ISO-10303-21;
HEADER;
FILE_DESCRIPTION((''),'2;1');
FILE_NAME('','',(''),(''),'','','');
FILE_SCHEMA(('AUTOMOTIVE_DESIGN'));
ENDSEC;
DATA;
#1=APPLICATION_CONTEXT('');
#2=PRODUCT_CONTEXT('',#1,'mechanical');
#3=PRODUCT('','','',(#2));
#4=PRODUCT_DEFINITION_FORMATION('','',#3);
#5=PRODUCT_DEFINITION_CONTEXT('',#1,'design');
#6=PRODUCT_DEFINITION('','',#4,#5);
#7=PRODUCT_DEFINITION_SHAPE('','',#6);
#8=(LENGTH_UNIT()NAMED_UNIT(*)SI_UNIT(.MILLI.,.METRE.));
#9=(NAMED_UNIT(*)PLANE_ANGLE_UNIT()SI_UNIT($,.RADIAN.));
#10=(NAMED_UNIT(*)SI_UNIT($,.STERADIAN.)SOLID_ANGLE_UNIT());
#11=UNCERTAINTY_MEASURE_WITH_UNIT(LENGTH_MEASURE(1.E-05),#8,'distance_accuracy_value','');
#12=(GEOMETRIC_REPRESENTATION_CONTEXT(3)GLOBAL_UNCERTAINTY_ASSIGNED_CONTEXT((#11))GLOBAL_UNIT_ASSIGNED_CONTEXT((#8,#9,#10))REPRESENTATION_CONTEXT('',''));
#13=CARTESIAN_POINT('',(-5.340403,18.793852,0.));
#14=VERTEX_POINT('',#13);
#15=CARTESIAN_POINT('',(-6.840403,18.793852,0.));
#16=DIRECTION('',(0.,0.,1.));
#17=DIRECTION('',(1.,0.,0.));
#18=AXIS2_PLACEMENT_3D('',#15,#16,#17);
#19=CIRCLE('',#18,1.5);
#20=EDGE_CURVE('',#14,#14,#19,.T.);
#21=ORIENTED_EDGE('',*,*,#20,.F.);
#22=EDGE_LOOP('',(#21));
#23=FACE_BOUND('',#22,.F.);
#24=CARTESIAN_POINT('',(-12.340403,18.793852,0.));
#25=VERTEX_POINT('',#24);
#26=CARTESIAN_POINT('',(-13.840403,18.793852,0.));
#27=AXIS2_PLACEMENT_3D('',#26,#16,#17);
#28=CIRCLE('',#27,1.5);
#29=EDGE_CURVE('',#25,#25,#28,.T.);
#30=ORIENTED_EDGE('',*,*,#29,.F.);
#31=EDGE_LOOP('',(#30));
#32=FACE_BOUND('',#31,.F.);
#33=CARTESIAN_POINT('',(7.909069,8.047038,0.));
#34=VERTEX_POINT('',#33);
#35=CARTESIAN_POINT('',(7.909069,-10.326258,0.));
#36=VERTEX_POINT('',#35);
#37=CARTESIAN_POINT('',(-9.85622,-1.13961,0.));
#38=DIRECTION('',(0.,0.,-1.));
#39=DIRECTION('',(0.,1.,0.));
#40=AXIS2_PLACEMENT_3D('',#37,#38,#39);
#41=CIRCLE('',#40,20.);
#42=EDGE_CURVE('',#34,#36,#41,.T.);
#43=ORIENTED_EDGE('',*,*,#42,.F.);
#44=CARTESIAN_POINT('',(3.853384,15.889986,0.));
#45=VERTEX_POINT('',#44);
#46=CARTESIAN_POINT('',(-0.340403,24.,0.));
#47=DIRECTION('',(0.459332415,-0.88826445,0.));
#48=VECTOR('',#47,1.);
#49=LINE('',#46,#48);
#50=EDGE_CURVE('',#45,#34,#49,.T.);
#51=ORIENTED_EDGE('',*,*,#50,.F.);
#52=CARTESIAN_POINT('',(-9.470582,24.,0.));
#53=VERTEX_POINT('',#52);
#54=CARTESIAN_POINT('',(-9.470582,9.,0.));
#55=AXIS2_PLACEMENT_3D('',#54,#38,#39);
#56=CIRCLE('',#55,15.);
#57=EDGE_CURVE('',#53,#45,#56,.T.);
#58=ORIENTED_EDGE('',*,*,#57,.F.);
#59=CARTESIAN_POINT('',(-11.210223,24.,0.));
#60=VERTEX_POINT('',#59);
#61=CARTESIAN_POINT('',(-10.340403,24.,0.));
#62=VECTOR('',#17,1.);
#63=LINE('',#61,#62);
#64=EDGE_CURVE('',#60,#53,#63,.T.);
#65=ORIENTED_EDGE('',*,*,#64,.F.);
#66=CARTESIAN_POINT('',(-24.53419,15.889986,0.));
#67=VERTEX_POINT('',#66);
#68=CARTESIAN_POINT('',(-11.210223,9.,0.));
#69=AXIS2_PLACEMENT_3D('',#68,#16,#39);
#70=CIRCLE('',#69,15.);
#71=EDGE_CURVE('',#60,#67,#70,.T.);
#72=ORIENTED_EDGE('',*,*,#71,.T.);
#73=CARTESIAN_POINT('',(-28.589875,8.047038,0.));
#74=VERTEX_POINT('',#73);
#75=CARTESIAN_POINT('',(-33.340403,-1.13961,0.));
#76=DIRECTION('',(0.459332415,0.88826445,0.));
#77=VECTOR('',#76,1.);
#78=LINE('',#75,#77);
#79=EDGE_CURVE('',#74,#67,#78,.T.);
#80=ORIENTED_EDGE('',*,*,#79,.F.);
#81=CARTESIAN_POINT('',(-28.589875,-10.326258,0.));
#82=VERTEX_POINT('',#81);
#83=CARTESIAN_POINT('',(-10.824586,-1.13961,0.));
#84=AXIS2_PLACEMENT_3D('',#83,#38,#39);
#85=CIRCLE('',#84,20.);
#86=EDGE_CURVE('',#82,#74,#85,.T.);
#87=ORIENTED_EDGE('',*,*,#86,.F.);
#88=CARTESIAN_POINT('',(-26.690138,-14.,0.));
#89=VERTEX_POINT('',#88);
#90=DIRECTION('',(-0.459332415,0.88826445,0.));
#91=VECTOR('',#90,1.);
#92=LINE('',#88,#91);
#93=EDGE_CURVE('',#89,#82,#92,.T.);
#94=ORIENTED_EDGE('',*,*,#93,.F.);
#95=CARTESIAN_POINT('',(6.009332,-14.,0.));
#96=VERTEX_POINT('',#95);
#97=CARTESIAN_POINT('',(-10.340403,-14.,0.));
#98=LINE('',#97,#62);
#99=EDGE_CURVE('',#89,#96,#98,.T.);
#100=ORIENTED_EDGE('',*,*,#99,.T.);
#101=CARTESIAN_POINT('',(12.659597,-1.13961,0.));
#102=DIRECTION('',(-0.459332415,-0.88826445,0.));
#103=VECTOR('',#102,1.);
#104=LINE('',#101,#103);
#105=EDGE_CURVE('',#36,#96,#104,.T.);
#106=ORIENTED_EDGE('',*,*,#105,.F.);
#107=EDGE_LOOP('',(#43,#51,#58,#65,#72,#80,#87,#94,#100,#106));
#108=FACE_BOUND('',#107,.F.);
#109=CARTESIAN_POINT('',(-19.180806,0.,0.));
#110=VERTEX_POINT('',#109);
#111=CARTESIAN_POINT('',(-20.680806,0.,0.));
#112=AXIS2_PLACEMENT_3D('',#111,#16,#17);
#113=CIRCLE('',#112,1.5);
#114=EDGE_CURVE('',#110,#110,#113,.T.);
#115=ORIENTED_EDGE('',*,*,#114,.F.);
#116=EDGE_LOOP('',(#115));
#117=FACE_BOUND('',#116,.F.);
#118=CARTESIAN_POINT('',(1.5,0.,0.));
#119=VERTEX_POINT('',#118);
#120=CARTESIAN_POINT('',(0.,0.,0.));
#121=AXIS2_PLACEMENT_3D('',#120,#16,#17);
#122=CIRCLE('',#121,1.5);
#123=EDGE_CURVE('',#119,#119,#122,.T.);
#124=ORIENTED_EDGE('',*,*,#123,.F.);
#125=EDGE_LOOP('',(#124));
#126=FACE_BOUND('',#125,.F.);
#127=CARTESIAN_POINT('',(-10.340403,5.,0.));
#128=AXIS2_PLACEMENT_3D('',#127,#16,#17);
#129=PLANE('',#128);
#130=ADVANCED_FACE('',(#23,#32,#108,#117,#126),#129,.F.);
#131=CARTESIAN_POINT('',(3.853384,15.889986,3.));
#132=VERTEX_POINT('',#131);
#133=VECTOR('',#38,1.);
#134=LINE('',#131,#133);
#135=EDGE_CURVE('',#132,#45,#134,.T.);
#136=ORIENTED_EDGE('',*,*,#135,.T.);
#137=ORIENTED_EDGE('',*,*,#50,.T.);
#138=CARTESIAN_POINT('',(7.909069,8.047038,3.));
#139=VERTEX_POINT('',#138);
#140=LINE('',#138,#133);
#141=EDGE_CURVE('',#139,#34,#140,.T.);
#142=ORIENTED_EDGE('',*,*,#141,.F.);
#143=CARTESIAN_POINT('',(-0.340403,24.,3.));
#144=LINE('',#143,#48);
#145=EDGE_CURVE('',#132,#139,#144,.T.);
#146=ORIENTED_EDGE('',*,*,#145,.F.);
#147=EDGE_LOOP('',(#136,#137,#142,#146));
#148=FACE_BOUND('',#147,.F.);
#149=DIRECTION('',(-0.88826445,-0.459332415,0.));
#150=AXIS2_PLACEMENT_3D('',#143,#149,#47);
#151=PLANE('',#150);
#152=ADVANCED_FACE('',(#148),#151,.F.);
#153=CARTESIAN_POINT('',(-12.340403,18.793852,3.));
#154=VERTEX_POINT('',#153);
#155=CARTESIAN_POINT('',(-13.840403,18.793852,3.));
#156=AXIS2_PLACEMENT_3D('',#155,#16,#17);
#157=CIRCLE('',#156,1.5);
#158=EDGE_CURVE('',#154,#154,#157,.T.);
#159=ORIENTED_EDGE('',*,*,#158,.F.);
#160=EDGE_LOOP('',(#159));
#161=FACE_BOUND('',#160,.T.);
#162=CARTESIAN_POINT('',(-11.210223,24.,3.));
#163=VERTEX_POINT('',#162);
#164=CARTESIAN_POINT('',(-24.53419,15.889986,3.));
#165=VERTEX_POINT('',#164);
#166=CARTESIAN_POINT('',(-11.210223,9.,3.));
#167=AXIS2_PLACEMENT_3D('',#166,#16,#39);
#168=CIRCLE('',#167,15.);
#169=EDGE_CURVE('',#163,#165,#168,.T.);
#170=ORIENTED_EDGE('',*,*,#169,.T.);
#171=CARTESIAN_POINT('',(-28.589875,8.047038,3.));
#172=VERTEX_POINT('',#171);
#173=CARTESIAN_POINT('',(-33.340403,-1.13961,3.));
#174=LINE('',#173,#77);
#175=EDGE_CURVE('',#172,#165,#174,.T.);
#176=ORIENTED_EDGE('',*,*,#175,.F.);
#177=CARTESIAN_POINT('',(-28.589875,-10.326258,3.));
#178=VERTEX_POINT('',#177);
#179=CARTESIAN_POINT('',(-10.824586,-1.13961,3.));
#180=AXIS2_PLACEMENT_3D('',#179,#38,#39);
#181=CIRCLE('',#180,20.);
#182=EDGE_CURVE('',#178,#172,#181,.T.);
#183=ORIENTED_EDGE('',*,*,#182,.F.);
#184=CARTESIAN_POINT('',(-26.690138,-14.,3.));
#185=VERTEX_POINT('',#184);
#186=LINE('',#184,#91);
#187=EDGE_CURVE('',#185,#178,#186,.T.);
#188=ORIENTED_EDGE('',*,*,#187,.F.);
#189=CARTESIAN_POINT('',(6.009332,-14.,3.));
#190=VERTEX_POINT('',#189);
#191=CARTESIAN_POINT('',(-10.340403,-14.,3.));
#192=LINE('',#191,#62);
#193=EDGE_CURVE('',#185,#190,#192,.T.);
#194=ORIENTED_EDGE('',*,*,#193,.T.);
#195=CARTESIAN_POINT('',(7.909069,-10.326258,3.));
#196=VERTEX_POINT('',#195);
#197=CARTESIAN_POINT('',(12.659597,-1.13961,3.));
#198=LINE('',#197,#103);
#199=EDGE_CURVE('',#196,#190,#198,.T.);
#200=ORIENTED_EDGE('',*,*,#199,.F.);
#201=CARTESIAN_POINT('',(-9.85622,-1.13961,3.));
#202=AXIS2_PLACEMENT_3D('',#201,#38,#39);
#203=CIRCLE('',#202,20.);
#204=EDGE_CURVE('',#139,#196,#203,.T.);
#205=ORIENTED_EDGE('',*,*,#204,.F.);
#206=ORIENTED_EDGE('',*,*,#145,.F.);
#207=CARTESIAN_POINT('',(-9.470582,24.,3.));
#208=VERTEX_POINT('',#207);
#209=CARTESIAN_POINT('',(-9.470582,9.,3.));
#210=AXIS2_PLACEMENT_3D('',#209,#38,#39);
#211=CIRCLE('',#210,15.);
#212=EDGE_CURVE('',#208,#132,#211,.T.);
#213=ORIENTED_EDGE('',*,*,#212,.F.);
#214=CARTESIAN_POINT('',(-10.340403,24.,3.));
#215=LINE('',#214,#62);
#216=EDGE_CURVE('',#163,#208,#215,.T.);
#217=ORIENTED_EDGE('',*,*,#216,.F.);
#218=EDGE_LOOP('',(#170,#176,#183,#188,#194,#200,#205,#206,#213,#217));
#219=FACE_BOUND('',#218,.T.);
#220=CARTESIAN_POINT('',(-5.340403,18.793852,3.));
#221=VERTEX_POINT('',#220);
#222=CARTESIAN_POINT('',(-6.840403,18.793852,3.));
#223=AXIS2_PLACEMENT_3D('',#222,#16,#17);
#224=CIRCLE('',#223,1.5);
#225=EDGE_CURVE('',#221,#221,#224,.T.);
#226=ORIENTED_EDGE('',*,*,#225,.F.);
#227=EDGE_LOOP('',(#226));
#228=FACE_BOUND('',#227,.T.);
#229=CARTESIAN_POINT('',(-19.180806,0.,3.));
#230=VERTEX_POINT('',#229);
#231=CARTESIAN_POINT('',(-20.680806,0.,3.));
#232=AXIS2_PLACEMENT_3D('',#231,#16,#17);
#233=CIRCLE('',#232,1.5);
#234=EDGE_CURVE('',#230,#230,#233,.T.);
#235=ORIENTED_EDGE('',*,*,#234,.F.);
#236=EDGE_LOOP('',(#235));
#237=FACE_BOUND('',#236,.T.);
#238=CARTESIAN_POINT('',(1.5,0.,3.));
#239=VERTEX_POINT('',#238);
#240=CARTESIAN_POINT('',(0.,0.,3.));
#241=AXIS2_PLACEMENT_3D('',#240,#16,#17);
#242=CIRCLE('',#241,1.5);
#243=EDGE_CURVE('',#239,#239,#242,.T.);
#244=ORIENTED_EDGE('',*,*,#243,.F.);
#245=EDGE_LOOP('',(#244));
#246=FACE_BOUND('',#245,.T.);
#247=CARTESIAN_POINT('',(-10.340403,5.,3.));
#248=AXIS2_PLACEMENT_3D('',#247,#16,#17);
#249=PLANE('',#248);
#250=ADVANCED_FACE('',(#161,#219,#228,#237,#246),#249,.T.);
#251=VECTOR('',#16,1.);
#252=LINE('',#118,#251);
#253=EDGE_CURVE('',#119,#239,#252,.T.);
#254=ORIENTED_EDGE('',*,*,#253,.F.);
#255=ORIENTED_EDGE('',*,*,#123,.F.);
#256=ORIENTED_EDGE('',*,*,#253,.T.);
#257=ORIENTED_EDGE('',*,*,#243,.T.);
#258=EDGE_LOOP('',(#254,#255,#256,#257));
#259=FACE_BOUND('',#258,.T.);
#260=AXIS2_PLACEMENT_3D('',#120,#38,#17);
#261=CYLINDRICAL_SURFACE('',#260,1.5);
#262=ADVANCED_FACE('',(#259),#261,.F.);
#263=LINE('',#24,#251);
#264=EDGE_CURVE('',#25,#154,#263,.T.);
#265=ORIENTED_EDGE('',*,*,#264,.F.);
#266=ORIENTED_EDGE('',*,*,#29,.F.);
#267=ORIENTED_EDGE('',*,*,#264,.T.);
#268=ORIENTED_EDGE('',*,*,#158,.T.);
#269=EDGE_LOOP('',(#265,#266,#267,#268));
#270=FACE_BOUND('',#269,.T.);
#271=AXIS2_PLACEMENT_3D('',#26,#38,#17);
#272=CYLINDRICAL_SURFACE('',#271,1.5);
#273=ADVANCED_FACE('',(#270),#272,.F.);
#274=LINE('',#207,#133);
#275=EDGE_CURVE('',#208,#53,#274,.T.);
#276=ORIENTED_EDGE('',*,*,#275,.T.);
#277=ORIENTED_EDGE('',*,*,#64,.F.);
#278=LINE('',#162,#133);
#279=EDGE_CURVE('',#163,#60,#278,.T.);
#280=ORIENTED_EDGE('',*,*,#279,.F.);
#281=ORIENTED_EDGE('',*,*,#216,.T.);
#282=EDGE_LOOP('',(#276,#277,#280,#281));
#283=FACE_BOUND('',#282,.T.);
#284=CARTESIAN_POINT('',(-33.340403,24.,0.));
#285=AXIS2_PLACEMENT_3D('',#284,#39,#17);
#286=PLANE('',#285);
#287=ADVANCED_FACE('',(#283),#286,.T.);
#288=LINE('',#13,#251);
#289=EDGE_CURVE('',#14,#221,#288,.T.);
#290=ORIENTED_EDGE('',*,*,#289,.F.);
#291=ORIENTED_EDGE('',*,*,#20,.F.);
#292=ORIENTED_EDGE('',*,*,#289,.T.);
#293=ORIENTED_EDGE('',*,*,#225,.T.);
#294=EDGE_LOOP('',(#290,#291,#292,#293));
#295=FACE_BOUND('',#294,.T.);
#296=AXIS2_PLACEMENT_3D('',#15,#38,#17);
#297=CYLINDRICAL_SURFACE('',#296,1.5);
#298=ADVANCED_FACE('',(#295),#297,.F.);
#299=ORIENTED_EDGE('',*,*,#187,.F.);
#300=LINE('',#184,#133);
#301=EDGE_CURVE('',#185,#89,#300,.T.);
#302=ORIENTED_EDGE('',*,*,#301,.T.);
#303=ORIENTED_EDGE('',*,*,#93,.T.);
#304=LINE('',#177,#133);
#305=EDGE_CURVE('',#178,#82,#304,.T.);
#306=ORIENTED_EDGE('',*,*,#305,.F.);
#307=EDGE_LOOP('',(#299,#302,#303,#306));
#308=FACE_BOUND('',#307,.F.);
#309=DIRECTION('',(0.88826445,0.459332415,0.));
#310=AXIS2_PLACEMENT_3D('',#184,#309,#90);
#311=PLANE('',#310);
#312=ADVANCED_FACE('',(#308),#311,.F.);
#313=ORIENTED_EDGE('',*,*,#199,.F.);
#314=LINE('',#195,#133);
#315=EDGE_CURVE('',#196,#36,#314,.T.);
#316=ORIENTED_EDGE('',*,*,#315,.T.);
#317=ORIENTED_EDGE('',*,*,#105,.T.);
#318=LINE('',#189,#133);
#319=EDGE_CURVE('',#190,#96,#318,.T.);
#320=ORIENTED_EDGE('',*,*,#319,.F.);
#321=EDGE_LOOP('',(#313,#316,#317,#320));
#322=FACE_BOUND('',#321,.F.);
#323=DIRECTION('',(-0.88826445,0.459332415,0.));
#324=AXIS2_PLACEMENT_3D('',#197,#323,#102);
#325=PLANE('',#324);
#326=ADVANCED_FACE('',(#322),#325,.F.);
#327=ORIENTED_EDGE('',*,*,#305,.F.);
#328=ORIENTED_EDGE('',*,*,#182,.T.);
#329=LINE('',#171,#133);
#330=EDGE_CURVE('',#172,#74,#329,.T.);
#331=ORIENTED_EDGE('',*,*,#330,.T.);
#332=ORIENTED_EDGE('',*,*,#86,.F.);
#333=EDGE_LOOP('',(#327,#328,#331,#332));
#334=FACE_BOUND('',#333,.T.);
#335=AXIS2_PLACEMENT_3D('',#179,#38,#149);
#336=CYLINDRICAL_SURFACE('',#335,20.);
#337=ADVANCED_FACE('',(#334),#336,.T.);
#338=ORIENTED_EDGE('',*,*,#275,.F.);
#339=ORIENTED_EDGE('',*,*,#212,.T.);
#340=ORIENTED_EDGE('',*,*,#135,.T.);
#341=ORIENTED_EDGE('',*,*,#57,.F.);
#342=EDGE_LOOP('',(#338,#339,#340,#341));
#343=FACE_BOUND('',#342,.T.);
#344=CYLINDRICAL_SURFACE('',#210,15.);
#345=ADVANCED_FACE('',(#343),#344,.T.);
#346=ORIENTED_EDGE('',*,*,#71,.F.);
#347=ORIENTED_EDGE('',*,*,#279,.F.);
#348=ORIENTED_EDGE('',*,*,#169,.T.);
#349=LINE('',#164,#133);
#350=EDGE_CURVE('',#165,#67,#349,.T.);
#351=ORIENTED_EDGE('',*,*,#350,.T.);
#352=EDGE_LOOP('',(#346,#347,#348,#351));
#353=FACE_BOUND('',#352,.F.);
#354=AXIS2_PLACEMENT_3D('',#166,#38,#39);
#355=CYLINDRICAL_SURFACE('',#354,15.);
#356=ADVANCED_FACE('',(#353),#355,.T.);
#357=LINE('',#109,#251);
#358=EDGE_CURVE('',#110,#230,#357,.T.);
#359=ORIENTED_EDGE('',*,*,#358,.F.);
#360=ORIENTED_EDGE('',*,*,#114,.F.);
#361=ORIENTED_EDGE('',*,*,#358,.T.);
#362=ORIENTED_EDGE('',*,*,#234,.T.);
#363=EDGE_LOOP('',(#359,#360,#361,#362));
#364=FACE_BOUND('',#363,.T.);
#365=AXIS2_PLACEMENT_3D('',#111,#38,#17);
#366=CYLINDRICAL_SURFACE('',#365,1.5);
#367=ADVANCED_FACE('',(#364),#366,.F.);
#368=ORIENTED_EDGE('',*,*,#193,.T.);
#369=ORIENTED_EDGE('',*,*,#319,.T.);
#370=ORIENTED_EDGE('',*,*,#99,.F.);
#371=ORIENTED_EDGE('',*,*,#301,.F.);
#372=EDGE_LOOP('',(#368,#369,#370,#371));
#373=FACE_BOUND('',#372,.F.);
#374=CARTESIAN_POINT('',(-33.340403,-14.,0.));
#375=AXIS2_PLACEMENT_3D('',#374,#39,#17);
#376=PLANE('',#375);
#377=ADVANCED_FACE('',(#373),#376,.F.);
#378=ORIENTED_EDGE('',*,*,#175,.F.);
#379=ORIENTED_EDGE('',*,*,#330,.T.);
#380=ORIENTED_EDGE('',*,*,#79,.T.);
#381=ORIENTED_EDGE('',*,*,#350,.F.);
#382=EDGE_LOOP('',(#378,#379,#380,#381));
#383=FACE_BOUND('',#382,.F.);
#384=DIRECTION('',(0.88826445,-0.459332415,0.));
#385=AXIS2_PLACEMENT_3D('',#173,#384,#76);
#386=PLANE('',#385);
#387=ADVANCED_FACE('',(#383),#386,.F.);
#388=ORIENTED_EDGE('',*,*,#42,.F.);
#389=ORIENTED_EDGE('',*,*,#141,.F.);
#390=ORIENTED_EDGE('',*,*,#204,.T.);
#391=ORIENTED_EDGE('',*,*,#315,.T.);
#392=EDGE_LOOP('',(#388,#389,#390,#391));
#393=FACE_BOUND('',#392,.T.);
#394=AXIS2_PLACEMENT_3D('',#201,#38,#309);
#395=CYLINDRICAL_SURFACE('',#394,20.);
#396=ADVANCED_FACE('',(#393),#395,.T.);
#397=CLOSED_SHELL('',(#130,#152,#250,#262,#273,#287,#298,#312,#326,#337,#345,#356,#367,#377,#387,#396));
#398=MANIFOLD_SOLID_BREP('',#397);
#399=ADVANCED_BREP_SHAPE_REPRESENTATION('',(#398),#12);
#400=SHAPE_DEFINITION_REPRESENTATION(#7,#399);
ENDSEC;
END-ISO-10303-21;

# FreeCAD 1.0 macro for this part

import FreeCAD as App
import Part
import Sketcher

V = App.Vector
Q = App.Units.Quantity


def edges_at(feature, points):
    """Names of the edges that pass closest to the given points."""
    edges = feature.Shape.Edges
    near = lambda p: min(range(len(edges)), key=lambda i: edges[i].distToShape(Part.Vertex(*p))[0])
    return sorted({f"Edge{near(p) + 1}" for p in points})


def add_polygon(sketch, points):
    """Adds a closed chain of lines whose ends are joined by coincident constraints."""
    first, n = sketch.GeometryCount, len(points)
    for a, b in zip(points, points[1:] + points[:1]):
        sketch.addGeometry(Part.LineSegment(App.Vector(*a, 0), App.Vector(*b, 0)), False)
    for i in range(n):
        sketch.addConstraint(Sketcher.Constraint("Coincident", first + i, 2, first + (i + 1) % n, 1))

doc = App.newDocument("Part")
body = doc.addObject("PartDesign::Body", "Body")

# Sketch on XY plane
sketch1 = body.newObject("Sketcher::SketchObject", "Sketch")
sketch1.AttachmentSupport = (doc.getObject("XY_Plane"), [""])
sketch1.MapMode = "FlatFace"
add_polygon(sketch1, [(-33.3, 24), (-33.3, -14), (12.7, -14), (12.7, 24)])  # lines 0-3
sketch1.addGeometry(Part.Circle(V(-20.7, 0, 0), V(0, 0, 1), 1.5), False)  # 4
sketch1.addGeometry(Part.Circle(V(0, 0, 0), V(0, 0, 1), 1.5), False)  # 5
sketch1.addGeometry(Part.Circle(V(-13.8, 18.8, 0), V(0, 0, 1), 1.5), False)  # 6
sketch1.addGeometry(Part.Circle(V(-6.8, 18.8, 0), V(0, 0, 1), 1.5), False)  # 7
sketch1.addConstraint([
    Sketcher.Constraint("Vertical", 0),
    Sketcher.Constraint("Horizontal", 1),
    Sketcher.Constraint("Vertical", 2),
    Sketcher.Constraint("Horizontal", 3),
    Sketcher.Constraint("Coincident", 5, 3, -1, 1),
    Sketcher.Constraint("Equal", 4, 5),
    Sketcher.Constraint("Equal", 5, 6),
    Sketcher.Constraint("Equal", 6, 7),
    Sketcher.Constraint("PointOnObject", 4, 3, -1),
    Sketcher.Constraint("Horizontal", 6, 3, 7, 3),
    Sketcher.Constraint("Diameter", 4, Q("3 mm")),
    Sketcher.Constraint("DistanceX", 1, 1, 1, 2, Q("46 mm")),
    Sketcher.Constraint("DistanceY", 0, 2, 0, 1, Q("38 mm")),
    Sketcher.Constraint("DistanceY", 0, 2, -1, 1, Q("14 mm")),
    Sketcher.Constraint("DistanceX", 6, 3, 7, 3, Q("7 mm")),
    Sketcher.Constraint("DistanceX", 0, 2, 6, 3, Q("19.5 mm")),
    Sketcher.Constraint("DistanceX", 4, 3, -1, 1, Q("20.680806 mm")),
    Sketcher.Constraint("DistanceX", 6, 3, -1, 1, Q("13.840403 mm")),
    Sketcher.Constraint("DistanceY", -1, 1, 6, 3, Q("18.793852 mm")),
])
pad1 = body.newObject("PartDesign::Pad", "Pad")
pad1.Profile = sketch1
pad1.Length = 3

# Sketch on XY plane
sketch2 = body.newObject("Sketcher::SketchObject", "Sketch001")
sketch2.AttachmentSupport = (doc.getObject("XY_Plane"), [""])
sketch2.MapMode = "FlatFace"
sketch2.AttachmentOffset = App.Placement(V(0, 0, 3), App.Rotation())
add_polygon(sketch2, [(-33, -1), (-20, 24), (-33, 24)])  # lines 0-2
add_polygon(sketch2, [(13, 24), (0, 24), (13, -1)])  # lines 3-5
add_polygon(sketch2, [(-27, -14), (-33, -1), (-33, -14)])  # lines 6-8
add_polygon(sketch2, [(13, -14), (13, -1), (6, -14)])  # lines 9-11
sketch2.addConstraint([
    Sketcher.Constraint("Horizontal", 1),
    Sketcher.Constraint("Vertical", 2),
    Sketcher.Constraint("Horizontal", 3),
    Sketcher.Constraint("Vertical", 5),
    Sketcher.Constraint("Vertical", 7),
    Sketcher.Constraint("Horizontal", 8),
    Sketcher.Constraint("Vertical", 9),
    Sketcher.Constraint("Horizontal", 11),
    Sketcher.Constraint("Coincident", 6, 2, 2, 2),
    Sketcher.Constraint("Coincident", 9, 2, 4, 2),
    Sketcher.Constraint("Parallel", 4, 6),
    Sketcher.Constraint("Parallel", 0, 10),
    Sketcher.Constraint("Horizontal", 1, 2, 3, 2),
    Sketcher.Constraint("Horizontal", 2, 2, 4, 2),
    Sketcher.Constraint("Horizontal", 8, 2, 10, 2),
    Sketcher.Constraint("Equal", 1, 3),
    Sketcher.Constraint("DistanceX", 1, 2, 1, 1, Q("13 mm")),
    Sketcher.Constraint("DistanceY", -1, 1, 0, 2, Q("24 mm")),
    Sketcher.Constraint("DistanceY", 7, 2, -1, 1, Q("14 mm")),
    Sketcher.Constraint("DistanceX", 0, 2, 3, 2, Q("20 mm")),
    Sketcher.Constraint("DistanceY", 2, 2, 2, 1, Q("25.13961 mm")),
    Sketcher.Constraint("DistanceX", 0, 2, -1, 1, Q("20.340403 mm")),
])
pocket1 = body.newObject("PartDesign::Pocket", "Pocket")
pocket1.Profile = sketch2
pocket1.Length = 3
doc.recompute()

fillet = body.newObject("PartDesign::Fillet", "Fillet")
fillet.Base = (pocket1, edges_at(pocket1, [(-0.34, 24, 1.5)]))
fillet.Radius = 15
doc.recompute()

fillet2 = body.newObject("PartDesign::Fillet", "Fillet001")
fillet2.Base = (fillet, edges_at(fillet, [(-20.34, 24, 1.5)]))
fillet2.Radius = 15
doc.recompute()

fillet3 = body.newObject("PartDesign::Fillet", "Fillet002")
fillet3.Base = (fillet2, edges_at(fillet2, [(12.66, -1.14, 1.5)]))
fillet3.Radius = 20
doc.recompute()

fillet4 = body.newObject("PartDesign::Fillet", "Fillet003")
fillet4.Base = (fillet3, edges_at(fillet3, [(-33.34, -1.14, 1.5)]))
fillet4.Radius = 20

doc.recompute()
